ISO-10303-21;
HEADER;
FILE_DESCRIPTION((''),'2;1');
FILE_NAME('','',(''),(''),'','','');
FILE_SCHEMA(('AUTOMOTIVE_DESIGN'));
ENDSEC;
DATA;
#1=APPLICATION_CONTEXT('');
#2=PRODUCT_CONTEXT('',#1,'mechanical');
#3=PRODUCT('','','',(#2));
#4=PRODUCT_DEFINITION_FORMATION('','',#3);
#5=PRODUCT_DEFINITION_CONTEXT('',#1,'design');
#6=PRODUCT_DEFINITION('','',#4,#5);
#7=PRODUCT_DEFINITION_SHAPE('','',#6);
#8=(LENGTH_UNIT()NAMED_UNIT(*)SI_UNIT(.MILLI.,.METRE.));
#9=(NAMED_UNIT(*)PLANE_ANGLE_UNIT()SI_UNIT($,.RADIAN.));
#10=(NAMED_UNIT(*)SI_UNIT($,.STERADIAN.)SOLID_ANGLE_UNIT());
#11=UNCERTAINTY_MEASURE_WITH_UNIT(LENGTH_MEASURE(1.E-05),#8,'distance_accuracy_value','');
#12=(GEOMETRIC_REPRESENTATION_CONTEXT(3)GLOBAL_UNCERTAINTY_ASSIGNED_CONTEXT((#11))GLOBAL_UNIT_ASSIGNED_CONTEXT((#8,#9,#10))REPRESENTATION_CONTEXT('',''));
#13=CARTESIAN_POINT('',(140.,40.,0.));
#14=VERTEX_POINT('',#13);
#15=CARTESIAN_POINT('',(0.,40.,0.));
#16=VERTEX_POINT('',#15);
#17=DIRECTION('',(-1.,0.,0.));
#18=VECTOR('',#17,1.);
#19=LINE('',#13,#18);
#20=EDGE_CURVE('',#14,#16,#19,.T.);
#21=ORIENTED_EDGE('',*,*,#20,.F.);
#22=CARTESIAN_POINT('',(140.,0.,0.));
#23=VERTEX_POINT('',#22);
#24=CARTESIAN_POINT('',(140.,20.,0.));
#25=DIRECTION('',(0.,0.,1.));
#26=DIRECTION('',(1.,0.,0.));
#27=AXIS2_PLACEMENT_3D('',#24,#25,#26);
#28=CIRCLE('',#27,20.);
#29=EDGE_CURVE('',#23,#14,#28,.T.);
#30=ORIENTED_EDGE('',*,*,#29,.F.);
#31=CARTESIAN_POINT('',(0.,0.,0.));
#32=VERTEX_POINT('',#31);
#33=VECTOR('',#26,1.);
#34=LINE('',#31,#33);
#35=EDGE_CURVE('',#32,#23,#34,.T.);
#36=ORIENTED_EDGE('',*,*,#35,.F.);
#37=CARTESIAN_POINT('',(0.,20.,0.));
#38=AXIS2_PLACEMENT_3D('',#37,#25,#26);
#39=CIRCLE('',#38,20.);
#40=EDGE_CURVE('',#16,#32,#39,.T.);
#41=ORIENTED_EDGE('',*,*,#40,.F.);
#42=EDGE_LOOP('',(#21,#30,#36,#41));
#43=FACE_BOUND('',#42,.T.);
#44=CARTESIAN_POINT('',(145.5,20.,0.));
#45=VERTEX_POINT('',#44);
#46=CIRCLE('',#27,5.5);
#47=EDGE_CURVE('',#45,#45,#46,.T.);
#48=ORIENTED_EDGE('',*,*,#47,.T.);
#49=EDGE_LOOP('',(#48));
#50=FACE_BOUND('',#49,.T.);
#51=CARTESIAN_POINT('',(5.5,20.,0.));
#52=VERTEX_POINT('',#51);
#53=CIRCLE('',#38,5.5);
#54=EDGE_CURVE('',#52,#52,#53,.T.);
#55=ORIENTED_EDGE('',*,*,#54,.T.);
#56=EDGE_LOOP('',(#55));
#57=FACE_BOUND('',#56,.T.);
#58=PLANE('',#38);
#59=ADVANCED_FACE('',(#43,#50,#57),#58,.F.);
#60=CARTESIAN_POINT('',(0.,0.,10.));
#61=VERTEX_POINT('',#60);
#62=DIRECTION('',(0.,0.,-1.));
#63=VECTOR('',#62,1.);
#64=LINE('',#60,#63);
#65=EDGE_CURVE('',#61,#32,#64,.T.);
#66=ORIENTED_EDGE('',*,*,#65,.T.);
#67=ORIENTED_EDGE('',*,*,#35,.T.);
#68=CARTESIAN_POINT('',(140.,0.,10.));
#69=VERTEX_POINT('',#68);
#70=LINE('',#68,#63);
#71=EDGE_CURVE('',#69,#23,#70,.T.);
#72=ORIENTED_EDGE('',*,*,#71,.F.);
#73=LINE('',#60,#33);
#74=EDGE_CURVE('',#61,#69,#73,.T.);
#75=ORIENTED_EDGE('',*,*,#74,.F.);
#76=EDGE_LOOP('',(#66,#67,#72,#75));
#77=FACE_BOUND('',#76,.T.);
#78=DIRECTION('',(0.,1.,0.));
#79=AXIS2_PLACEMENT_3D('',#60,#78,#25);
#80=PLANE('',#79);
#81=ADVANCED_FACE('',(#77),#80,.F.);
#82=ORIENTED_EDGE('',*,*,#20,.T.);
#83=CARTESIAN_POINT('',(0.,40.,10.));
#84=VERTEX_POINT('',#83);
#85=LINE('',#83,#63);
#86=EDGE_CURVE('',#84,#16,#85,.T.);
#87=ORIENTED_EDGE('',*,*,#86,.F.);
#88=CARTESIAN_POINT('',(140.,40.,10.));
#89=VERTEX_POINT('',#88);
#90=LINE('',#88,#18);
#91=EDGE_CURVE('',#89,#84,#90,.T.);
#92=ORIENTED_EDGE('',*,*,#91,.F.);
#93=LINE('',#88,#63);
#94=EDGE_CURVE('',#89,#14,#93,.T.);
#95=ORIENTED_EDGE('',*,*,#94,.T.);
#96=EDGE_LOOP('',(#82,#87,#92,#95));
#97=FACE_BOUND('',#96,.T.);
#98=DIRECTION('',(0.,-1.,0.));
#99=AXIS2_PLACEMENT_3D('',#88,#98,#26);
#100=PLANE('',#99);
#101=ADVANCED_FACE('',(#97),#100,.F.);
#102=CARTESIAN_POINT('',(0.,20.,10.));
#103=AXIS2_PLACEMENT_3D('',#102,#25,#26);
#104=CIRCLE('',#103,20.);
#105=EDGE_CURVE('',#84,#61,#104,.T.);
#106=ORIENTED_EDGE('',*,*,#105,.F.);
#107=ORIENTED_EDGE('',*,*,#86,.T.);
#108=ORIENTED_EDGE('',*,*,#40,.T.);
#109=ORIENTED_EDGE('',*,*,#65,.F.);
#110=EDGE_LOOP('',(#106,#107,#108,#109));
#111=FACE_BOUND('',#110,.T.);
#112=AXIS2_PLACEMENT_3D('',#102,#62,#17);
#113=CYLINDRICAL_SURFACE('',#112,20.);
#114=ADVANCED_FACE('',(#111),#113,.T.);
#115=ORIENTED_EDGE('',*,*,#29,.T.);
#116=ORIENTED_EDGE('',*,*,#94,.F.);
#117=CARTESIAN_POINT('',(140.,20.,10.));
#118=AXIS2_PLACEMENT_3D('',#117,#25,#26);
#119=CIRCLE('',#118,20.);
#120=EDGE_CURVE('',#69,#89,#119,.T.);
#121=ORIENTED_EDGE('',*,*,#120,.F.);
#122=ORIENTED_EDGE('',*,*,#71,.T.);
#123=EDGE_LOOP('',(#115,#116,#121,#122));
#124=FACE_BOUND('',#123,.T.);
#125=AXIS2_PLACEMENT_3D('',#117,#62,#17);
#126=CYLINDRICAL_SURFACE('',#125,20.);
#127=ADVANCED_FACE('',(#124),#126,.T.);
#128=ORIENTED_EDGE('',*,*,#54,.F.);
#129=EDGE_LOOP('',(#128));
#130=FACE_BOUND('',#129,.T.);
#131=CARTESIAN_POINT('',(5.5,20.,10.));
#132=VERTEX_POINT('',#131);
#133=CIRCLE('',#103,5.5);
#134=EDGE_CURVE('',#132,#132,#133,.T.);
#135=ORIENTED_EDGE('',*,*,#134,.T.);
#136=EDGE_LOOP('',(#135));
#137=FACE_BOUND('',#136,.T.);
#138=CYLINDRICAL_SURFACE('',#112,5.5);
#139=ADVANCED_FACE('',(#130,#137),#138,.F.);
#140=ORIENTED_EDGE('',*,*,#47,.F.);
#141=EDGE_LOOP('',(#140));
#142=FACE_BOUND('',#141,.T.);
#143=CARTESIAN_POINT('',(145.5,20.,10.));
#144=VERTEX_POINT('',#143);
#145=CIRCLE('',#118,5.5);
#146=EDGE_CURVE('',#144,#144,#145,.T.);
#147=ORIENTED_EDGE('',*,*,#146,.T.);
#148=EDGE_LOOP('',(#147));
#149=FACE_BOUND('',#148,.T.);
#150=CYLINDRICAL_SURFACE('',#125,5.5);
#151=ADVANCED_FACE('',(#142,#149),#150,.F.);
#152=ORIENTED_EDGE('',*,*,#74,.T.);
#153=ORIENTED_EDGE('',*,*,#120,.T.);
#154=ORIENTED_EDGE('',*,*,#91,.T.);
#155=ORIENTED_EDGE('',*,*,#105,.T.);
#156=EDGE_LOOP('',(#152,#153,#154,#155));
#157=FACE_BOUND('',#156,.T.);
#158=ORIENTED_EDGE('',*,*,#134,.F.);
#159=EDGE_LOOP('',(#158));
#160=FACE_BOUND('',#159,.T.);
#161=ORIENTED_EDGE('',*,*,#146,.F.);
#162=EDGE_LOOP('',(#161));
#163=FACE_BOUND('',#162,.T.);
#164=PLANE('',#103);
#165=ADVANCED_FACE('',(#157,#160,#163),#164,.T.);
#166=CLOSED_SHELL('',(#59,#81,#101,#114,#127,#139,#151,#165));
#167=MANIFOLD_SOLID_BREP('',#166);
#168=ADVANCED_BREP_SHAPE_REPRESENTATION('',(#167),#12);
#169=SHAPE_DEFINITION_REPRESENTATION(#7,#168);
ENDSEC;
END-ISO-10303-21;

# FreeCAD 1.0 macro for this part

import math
import FreeCAD as App
import Part
import Sketcher

V = App.Vector
Q = App.Units.Quantity

doc = App.newDocument("Part")
params = doc.addObject("Spreadsheet::Sheet", "Params")
for row, (alias, value) in enumerate([
    ("sketch1_diameter", "11 mm"),
    ("sketch1_radius", "20 mm"),
    ("sketch1_width", "140 mm"),
    ("pad1_length", "10 mm"),
], start=1):
    params.set(f"A{row}", alias)
    params.set(f"B{row}", "=" + value)
    params.setAlias(f"B{row}", alias)

body = doc.addObject("PartDesign::Body", "Body")

sketch1 = body.newObject("Sketcher::SketchObject", "Sketch")
sketch1.AttachmentSupport = (doc.getObject("XY_Plane"), [""])
sketch1.MapMode = "FlatFace"
sketch1.addGeometry([
    Part.LineSegment(V(0, 0, 0), V(140, 0, 0)),
    Part.ArcOfCircle(Part.Circle(V(140, 20, 0), V(0, 0, 1), 20), math.radians(-90), math.radians(90)),
    Part.LineSegment(V(140, 40, 0), V(0, 40, 0)),
    Part.ArcOfCircle(Part.Circle(V(0, 20, 0), V(0, 0, 1), 20), math.radians(90), math.radians(270)),
    Part.Circle(V(0, 20, 0), V(0, 0, 1), 6),
    Part.Circle(V(140, 20, 0), V(0, 0, 1), 6),
], False)
sketch1.addConstraint([
    Sketcher.Constraint("Tangent", 0, 2, 1, 1),
    Sketcher.Constraint("Tangent", 1, 2, 2, 1),
    Sketcher.Constraint("Tangent", 2, 2, 3, 1),
    Sketcher.Constraint("Tangent", 3, 2, 0, 1),
    Sketcher.Constraint("Horizontal", 0),
    Sketcher.Constraint("Horizontal", 2),
    Sketcher.Constraint("Coincident", 3, 2, -1, 1),
    Sketcher.Constraint("Coincident", 4, 3, 3, 3),
    Sketcher.Constraint("Coincident", 5, 3, 1, 3),
    Sketcher.Constraint("Equal", 4, 5),
    Sketcher.Constraint("Diameter", 4, Q("11 mm")),
    Sketcher.Constraint("Radius", 1, Q("20 mm")),
    Sketcher.Constraint("DistanceX", 0, 1, 0, 2, Q("140 mm")),
])
sketch1.setExpression("Constraints[10]", "Params.sketch1_diameter")
sketch1.setExpression("Constraints[11]", "Params.sketch1_radius")
sketch1.setExpression("Constraints[12]", "Params.sketch1_width")
pad1 = body.newObject("PartDesign::Pad", "Pad")
pad1.Profile = sketch1
pad1.setExpression("Length", "Params.pad1_length")

doc.recompute()
